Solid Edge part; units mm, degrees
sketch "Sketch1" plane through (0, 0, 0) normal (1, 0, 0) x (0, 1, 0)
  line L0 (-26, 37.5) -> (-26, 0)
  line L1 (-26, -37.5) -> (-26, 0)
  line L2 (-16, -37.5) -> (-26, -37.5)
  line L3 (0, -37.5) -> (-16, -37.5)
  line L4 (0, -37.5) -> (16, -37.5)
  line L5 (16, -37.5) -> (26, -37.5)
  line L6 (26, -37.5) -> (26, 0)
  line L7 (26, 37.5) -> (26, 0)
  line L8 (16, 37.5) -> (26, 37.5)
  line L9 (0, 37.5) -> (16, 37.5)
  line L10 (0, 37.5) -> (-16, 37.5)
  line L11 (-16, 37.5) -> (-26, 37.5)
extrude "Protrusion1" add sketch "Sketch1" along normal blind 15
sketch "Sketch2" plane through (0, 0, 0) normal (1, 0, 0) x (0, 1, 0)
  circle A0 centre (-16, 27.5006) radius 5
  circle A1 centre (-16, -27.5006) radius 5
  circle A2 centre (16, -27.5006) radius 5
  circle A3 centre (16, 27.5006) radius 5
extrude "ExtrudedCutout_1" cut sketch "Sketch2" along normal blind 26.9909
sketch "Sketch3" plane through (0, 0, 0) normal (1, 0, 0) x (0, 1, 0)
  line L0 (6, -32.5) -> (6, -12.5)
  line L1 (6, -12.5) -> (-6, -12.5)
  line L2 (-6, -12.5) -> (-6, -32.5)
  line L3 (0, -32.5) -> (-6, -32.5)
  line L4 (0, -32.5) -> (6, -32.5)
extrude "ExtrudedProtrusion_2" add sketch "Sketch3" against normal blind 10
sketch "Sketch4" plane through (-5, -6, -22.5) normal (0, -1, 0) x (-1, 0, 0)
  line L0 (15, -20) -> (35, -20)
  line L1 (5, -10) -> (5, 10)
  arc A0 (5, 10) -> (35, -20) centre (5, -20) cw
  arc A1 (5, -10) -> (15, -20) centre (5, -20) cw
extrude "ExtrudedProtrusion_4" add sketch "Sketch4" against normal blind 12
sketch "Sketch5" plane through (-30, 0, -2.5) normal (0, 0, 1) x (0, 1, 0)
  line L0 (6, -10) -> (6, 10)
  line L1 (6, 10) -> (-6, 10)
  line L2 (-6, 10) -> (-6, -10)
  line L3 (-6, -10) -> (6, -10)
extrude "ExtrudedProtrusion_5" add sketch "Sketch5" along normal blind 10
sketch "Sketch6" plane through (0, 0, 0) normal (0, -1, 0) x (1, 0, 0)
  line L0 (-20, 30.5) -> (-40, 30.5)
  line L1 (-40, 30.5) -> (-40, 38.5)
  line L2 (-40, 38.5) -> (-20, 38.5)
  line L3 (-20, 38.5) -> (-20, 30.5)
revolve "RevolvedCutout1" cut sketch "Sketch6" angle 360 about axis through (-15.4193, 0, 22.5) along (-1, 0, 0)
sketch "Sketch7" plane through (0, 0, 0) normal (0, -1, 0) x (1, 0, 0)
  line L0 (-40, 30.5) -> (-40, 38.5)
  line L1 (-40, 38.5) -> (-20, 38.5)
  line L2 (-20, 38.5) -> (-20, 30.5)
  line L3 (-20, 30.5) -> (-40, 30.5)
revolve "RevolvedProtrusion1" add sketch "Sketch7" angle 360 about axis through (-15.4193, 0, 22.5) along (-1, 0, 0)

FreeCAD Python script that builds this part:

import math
import FreeCAD as App
import Part
import Sketcher
Q = App.Units.Quantity

doc = App.newDocument("Part")
body = doc.addObject("PartDesign::Body", "Body")

sketch1 = body.newObject("Sketcher::SketchObject", "Sketch")
sketch1.AttachmentSupport = (doc.getObject("YZ_Plane"), [""])
sketch1.MapMode = "FlatFace"
sketch1.addGeometry([
    Part.LineSegment(App.Vector(26, 37.5, 0), App.Vector(-26, 37.5, 0)),
    Part.LineSegment(App.Vector(-26, 37.5, 0), App.Vector(-26, -37.5, 0)),
    Part.LineSegment(App.Vector(-26, -37.5, 0), App.Vector(26, -37.5, 0)),
    Part.LineSegment(App.Vector(26, -37.5, 0), App.Vector(26, 37.5, 0)),
], False)
sketch1.addConstraint([
    Sketcher.Constraint("Coincident", 0, 2, 1, 1),
    Sketcher.Constraint("Coincident", 1, 2, 2, 1),
    Sketcher.Constraint("Coincident", 2, 2, 3, 1),
    Sketcher.Constraint("Coincident", 3, 2, 0, 1),
    Sketcher.Constraint("Horizontal", 0),
    Sketcher.Constraint("Vertical", 1),
    Sketcher.Constraint("Horizontal", 2),
    Sketcher.Constraint("Vertical", 3),
    Sketcher.Constraint("Symmetric", 0, 2, 2, 2, -1, 1),
    Sketcher.Constraint("DistanceX", 0, 2, 0, 1, Q("52 mm")),
    Sketcher.Constraint("DistanceY", 1, 2, 1, 1, Q("75 mm")),
])
pad1 = body.newObject("PartDesign::Pad", "Pad")
pad1.Profile = sketch1
pad1.Length = 15

sketch2 = body.newObject("Sketcher::SketchObject", "Sketch001")
sketch2.AttachmentSupport = (doc.getObject("YZ_Plane"), [""])
sketch2.MapMode = "FlatFace"
sketch2.addGeometry([
    Part.Circle(App.Vector(-16, 27.5006, 0), App.Vector(0, 0, 1), 5),
    Part.Circle(App.Vector(-16, -27.5006, 0), App.Vector(0, 0, 1), 5),
    Part.Circle(App.Vector(16, -27.5006, 0), App.Vector(0, 0, 1), 5),
    Part.Circle(App.Vector(16, 27.5006, 0), App.Vector(0, 0, 1), 5),
], False)
sketch2.addConstraint([
    Sketcher.Constraint("Equal", 0, 1),
    Sketcher.Constraint("Equal", 1, 2),
    Sketcher.Constraint("Equal", 2, 3),
    Sketcher.Constraint("Symmetric", 0, 3, 2, 3, -1, 1),
    Sketcher.Constraint("Symmetric", 1, 3, 3, 3, -1, 1),
    Sketcher.Constraint("Symmetric", 1, 3, 2, 3, -2),
    Sketcher.Constraint("Diameter", 0, Q("10 mm")),
    Sketcher.Constraint("DistanceX", 0, 3, -1, 1, Q("16 mm")),
    Sketcher.Constraint("DistanceY", -1, 1, 0, 3, Q("27.5006 mm")),
])
pocket1 = body.newObject("PartDesign::Pocket", "Pocket")
pocket1.Profile = sketch2
pocket1.Length = 26.9909
pocket1.Reversed = True

sketch3 = body.newObject("Sketcher::SketchObject", "Sketch002")
sketch3.AttachmentSupport = (doc.getObject("YZ_Plane"), [""])
sketch3.MapMode = "FlatFace"
sketch3.addGeometry([
    Part.LineSegment(App.Vector(-6, -32.5, 0), App.Vector(6, -32.5, 0)),
    Part.LineSegment(App.Vector(6, -32.5, 0), App.Vector(6, -12.5, 0)),
    Part.LineSegment(App.Vector(6, -12.5, 0), App.Vector(-6, -12.5, 0)),
    Part.LineSegment(App.Vector(-6, -12.5, 0), App.Vector(-6, -32.5, 0)),
], False)
sketch3.addConstraint([
    Sketcher.Constraint("Coincident", 0, 2, 1, 1),
    Sketcher.Constraint("Coincident", 1, 2, 2, 1),
    Sketcher.Constraint("Coincident", 2, 2, 3, 1),
    Sketcher.Constraint("Coincident", 3, 2, 0, 1),
    Sketcher.Constraint("Horizontal", 0),
    Sketcher.Constraint("Vertical", 1),
    Sketcher.Constraint("Horizontal", 2),
    Sketcher.Constraint("Vertical", 3),
    Sketcher.Constraint("DistanceX", 0, 1, 0, 2, Q("12 mm")),
    Sketcher.Constraint("DistanceY", 1, 1, 1, 2, Q("20 mm")),
    Sketcher.Constraint("DistanceX", -1, 1, 0, 2, Q("6 mm")),
    Sketcher.Constraint("DistanceY", 0, 2, -1, 1, Q("32.5 mm")),
])
pad2 = body.newObject("PartDesign::Pad", "Pad001")
pad2.Profile = sketch3
pad2.Length = 10
pad2.Reversed = True

sketch4 = body.newObject("Sketcher::SketchObject", "Sketch003")
sketch4.AttachmentSupport = (doc.getObject("XZ_Plane"), [""])
sketch4.MapMode = "FlatFace"
sketch4.AttachmentOffset = App.Placement(App.Vector(0, 0, 6), App.Rotation())
sketch4.addGeometry([
    Part.ArcOfCircle(Part.Circle(App.Vector(-10, -2.5, 0), App.Vector(0, 0, 1), 10), math.radians(180), math.radians(270)),
    Part.LineSegment(App.Vector(-20, -2.5, 0), App.Vector(-40, -2.5, 0)),
    Part.ArcOfCircle(Part.Circle(App.Vector(-10, -2.5, 0), App.Vector(0, 0, 1), 30), math.radians(180), math.radians(270)),
    Part.LineSegment(App.Vector(-10, -32.5, 0), App.Vector(-10, -12.5, 0)),
], False)
sketch4.addConstraint([
    Sketcher.Constraint("Coincident", 0, 1, 1, 1),
    Sketcher.Constraint("Coincident", 1, 2, 2, 1),
    Sketcher.Constraint("Coincident", 2, 2, 3, 1),
    Sketcher.Constraint("Coincident", 3, 2, 0, 2),
    Sketcher.Constraint("Horizontal", 1),
    Sketcher.Constraint("Vertical", 3),
    Sketcher.Constraint("Coincident", 2, 3, 0, 3),
    Sketcher.Constraint("Horizontal", 2, 3, 0, 1),
    Sketcher.Constraint("Vertical", 0, 3, 2, 2),
    Sketcher.Constraint("Radius", 0, Q("10 mm")),
    Sketcher.Constraint("Radius", 2, Q("30 mm")),
    Sketcher.Constraint("DistanceX", 0, 3, -1, 1, Q("10 mm")),
    Sketcher.Constraint("DistanceY", 0, 3, -1, 1, Q("2.5 mm")),
])
pad3 = body.newObject("PartDesign::Pad", "Pad002")
pad3.Profile = sketch4
pad3.Length = 12
pad3.Reversed = True

sketch5 = body.newObject("Sketcher::SketchObject", "Sketch004")
sketch5.AttachmentSupport = (doc.getObject("XY_Plane"), [""])
sketch5.MapMode = "FlatFace"
sketch5.AttachmentOffset = App.Placement(App.Vector(0, 0, -2.5), App.Rotation())
sketch5.addGeometry([
    Part.LineSegment(App.Vector(-20, -6, 0), App.Vector(-20, 6, 0)),
    Part.LineSegment(App.Vector(-20, 6, 0), App.Vector(-40, 6, 0)),
    Part.LineSegment(App.Vector(-40, 6, 0), App.Vector(-40, -6, 0)),
    Part.LineSegment(App.Vector(-40, -6, 0), App.Vector(-20, -6, 0)),
], False)
sketch5.addConstraint([
    Sketcher.Constraint("Coincident", 0, 2, 1, 1),
    Sketcher.Constraint("Coincident", 1, 2, 2, 1),
    Sketcher.Constraint("Coincident", 2, 2, 3, 1),
    Sketcher.Constraint("Coincident", 3, 2, 0, 1),
    Sketcher.Constraint("Vertical", 0),
    Sketcher.Constraint("Horizontal", 1),
    Sketcher.Constraint("Vertical", 2),
    Sketcher.Constraint("Horizontal", 3),
    Sketcher.Constraint("DistanceX", 1, 2, 1, 1, Q("20 mm")),
    Sketcher.Constraint("DistanceY", 0, 1, 0, 2, Q("12 mm")),
    Sketcher.Constraint("DistanceX", 0, 2, -1, 1, Q("20 mm")),
    Sketcher.Constraint("DistanceY", -1, 1, 0, 2, Q("6 mm")),
])
pad4 = body.newObject("PartDesign::Pad", "Pad003")
pad4.Profile = sketch5
pad4.Length = 10

sketch6 = body.newObject("Sketcher::SketchObject", "Sketch005")
sketch6.AttachmentSupport = (doc.getObject("XZ_Plane"), [""])
sketch6.MapMode = "FlatFace"
sketch6.addGeometry([
    Part.LineSegment(App.Vector(-40, 30.5, 0), App.Vector(-20, 30.5, 0)),
    Part.LineSegment(App.Vector(-20, 30.5, 0), App.Vector(-20, 38.5, 0)),
    Part.LineSegment(App.Vector(-20, 38.5, 0), App.Vector(-40, 38.5, 0)),
    Part.LineSegment(App.Vector(-40, 38.5, 0), App.Vector(-40, 30.5, 0)),
], False)
sketch6.addGeometry(Part.LineSegment(App.Vector(-20, 22.5, 0), App.Vector(-40, 22.5, 0)), True)
sketch6.addConstraint([
    Sketcher.Constraint("Coincident", 0, 2, 1, 1),
    Sketcher.Constraint("Coincident", 1, 2, 2, 1),
    Sketcher.Constraint("Coincident", 2, 2, 3, 1),
    Sketcher.Constraint("Coincident", 3, 2, 0, 1),
    Sketcher.Constraint("Horizontal", 0),
    Sketcher.Constraint("Vertical", 1),
    Sketcher.Constraint("Horizontal", 2),
    Sketcher.Constraint("Vertical", 3),
    Sketcher.Constraint("Horizontal", 4),
    Sketcher.Constraint("Vertical", 1, 2, 4, 1),
    Sketcher.Constraint("Vertical", 3, 2, 4, 2),
    Sketcher.Constraint("DistanceX", 0, 1, 0, 2, Q("20 mm")),
    Sketcher.Constraint("DistanceY", 1, 1, 1, 2, Q("8 mm")),
    Sketcher.Constraint("DistanceX", 0, 2, -1, 1, Q("20 mm")),
    Sketcher.Constraint("DistanceY", 4, 1, 0, 2, Q("8 mm")),
    Sketcher.Constraint("DistanceY", -1, 1, 0, 2, Q("30.5 mm")),
])
groove = body.newObject("PartDesign::Groove", "Groove")
groove.Profile = sketch6
groove.ReferenceAxis = (sketch6, ["Axis0"])
groove.Angle = 360

sketch7 = body.newObject("Sketcher::SketchObject", "Sketch006")
sketch7.AttachmentSupport = (doc.getObject("XZ_Plane"), [""])
sketch7.MapMode = "FlatFace"
sketch7.addGeometry([
    Part.LineSegment(App.Vector(-40, 38.5, 0), App.Vector(-40, 30.5, 0)),
    Part.LineSegment(App.Vector(-40, 30.5, 0), App.Vector(-20, 30.5, 0)),
    Part.LineSegment(App.Vector(-20, 30.5, 0), App.Vector(-20, 38.5, 0)),
    Part.LineSegment(App.Vector(-20, 38.5, 0), App.Vector(-40, 38.5, 0)),
], False)
sketch7.addGeometry(Part.LineSegment(App.Vector(-20, 22.5, 0), App.Vector(-40, 22.5, 0)), True)
sketch7.addConstraint([
    Sketcher.Constraint("Coincident", 0, 2, 1, 1),
    Sketcher.Constraint("Coincident", 1, 2, 2, 1),
    Sketcher.Constraint("Coincident", 2, 2, 3, 1),
    Sketcher.Constraint("Coincident", 3, 2, 0, 1),
    Sketcher.Constraint("Vertical", 0),
    Sketcher.Constraint("Horizontal", 1),
    Sketcher.Constraint("Vertical", 2),
    Sketcher.Constraint("Horizontal", 3),
    Sketcher.Constraint("Horizontal", 4),
    Sketcher.Constraint("Vertical", 2, 2, 4, 1),
    Sketcher.Constraint("Vertical", 3, 2, 4, 2),
    Sketcher.Constraint("DistanceX", 1, 1, 1, 2, Q("20 mm")),
    Sketcher.Constraint("DistanceY", 0, 2, 0, 1, Q("8 mm")),
    Sketcher.Constraint("DistanceX", 0, 2, -1, 1, Q("40 mm")),
    Sketcher.Constraint("DistanceY", 4, 1, 1, 2, Q("8 mm")),
    Sketcher.Constraint("DistanceY", -1, 1, 0, 2, Q("30.5 mm")),
])
revolution = body.newObject("PartDesign::Revolution", "Revolution")
revolution.Profile = sketch7
revolution.ReferenceAxis = (sketch7, ["Axis0"])
revolution.Angle = 360

doc.recompute()
